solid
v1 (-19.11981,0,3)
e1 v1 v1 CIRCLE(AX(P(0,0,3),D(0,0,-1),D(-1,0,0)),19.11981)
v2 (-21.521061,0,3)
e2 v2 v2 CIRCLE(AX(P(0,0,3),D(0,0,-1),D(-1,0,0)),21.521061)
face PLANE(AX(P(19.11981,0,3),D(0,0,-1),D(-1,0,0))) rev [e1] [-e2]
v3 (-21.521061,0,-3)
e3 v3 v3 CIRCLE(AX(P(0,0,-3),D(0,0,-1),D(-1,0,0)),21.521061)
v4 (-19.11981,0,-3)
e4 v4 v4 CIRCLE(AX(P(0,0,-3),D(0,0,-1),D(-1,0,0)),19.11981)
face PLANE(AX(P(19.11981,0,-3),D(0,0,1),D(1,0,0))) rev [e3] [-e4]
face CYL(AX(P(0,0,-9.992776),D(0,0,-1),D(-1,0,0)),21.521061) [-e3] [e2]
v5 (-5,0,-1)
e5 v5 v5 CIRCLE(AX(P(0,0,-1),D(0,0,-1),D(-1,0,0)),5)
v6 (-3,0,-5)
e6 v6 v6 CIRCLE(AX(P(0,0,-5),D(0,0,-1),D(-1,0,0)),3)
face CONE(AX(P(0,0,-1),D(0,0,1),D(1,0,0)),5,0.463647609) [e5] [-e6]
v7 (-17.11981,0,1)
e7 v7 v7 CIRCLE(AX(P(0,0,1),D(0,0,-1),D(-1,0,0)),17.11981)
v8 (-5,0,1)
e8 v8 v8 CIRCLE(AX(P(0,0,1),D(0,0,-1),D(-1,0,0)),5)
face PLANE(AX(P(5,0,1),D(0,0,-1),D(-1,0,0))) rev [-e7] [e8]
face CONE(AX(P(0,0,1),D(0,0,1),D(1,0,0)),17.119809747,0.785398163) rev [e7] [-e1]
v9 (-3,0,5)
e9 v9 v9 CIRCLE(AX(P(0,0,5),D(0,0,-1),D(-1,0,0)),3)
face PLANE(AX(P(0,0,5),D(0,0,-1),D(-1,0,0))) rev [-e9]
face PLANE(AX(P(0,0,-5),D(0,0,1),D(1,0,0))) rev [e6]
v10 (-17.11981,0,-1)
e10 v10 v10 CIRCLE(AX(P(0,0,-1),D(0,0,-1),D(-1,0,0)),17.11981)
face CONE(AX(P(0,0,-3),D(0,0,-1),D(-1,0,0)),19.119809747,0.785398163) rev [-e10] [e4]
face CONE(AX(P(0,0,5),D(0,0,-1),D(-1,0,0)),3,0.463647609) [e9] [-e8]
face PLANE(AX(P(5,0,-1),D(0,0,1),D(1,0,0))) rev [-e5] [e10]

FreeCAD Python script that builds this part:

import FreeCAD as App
import Part
import Sketcher

V = App.Vector
Q = App.Units.Quantity


def add_polygon(sketch, points):
    """Adds a closed chain of lines whose ends are joined by coincident constraints."""
    first, n = sketch.GeometryCount, len(points)
    for a, b in zip(points, points[1:] + points[:1]):
        sketch.addGeometry(Part.LineSegment(App.Vector(*a, 0), App.Vector(*b, 0)), False)
    for i in range(n):
        sketch.addConstraint(Sketcher.Constraint("Coincident", first + i, 2, first + (i + 1) % n, 1))

doc = App.newDocument("Part")
body = doc.addObject("PartDesign::Body", "Body")

# Sketch on XZ plane
sketch1 = body.newObject("Sketcher::SketchObject", "Sketch")
sketch1.AttachmentSupport = (doc.getObject("XZ_Plane"), [""])
sketch1.MapMode = "FlatFace"
add_polygon(sketch1, [(19.1, -3), (17.1, -1), (5, -1), (3, -5), (0, -5), (0, 5), (3, 5), (5, 1), (17.1, 1), (19.1, 3), (21.5, 3), (21.5, -3)])  # lines 0-11
sketch1.addConstraint([
    Sketcher.Constraint("Horizontal", 1),
    Sketcher.Constraint("Horizontal", 3),
    Sketcher.Constraint("Vertical", 4),
    Sketcher.Constraint("Horizontal", 5),
    Sketcher.Constraint("Horizontal", 7),
    Sketcher.Constraint("Horizontal", 9),
    Sketcher.Constraint("Vertical", 10),
    Sketcher.Constraint("Horizontal", 11),
    Sketcher.Constraint("Symmetric", 3, 2, 4, 2, -1, 1),
    Sketcher.Constraint("Symmetric", 1, 2, 6, 2, -1),
    Sketcher.Constraint("Symmetric", 8, 2, 11, 2, -1),
    Sketcher.Constraint("Perpendicular", 0, 8),
    Sketcher.Constraint("Vertical", 2, 2, 5, 2),
    Sketcher.Constraint("Vertical", 0, 2, 7, 2),
    Sketcher.Constraint("DistanceX", 3, 2, 3, 1, Q("3 mm")),
    Sketcher.Constraint("DistanceY", 4, 1, 4, 2, Q("10 mm")),
    Sketcher.Constraint("DistanceY", 10, 2, 10, 1, Q("6 mm")),
    Sketcher.Constraint("DistanceY", 0, 2, -1, 1, Q("1 mm")),
    Sketcher.Constraint("DistanceX", -1, 1, 1, 2, Q("5 mm")),
    Sketcher.Constraint("DistanceX", 1, 2, 1, 1, Q("12.11981 mm")),
    Sketcher.Constraint("DistanceX", 9, 1, 9, 2, Q("2.401252 mm")),
])
revolution = body.newObject("PartDesign::Revolution", "Revolution")
revolution.Profile = sketch1
revolution.ReferenceAxis = (sketch1, ["V_Axis"])
revolution.Angle = 360

doc.recompute()
